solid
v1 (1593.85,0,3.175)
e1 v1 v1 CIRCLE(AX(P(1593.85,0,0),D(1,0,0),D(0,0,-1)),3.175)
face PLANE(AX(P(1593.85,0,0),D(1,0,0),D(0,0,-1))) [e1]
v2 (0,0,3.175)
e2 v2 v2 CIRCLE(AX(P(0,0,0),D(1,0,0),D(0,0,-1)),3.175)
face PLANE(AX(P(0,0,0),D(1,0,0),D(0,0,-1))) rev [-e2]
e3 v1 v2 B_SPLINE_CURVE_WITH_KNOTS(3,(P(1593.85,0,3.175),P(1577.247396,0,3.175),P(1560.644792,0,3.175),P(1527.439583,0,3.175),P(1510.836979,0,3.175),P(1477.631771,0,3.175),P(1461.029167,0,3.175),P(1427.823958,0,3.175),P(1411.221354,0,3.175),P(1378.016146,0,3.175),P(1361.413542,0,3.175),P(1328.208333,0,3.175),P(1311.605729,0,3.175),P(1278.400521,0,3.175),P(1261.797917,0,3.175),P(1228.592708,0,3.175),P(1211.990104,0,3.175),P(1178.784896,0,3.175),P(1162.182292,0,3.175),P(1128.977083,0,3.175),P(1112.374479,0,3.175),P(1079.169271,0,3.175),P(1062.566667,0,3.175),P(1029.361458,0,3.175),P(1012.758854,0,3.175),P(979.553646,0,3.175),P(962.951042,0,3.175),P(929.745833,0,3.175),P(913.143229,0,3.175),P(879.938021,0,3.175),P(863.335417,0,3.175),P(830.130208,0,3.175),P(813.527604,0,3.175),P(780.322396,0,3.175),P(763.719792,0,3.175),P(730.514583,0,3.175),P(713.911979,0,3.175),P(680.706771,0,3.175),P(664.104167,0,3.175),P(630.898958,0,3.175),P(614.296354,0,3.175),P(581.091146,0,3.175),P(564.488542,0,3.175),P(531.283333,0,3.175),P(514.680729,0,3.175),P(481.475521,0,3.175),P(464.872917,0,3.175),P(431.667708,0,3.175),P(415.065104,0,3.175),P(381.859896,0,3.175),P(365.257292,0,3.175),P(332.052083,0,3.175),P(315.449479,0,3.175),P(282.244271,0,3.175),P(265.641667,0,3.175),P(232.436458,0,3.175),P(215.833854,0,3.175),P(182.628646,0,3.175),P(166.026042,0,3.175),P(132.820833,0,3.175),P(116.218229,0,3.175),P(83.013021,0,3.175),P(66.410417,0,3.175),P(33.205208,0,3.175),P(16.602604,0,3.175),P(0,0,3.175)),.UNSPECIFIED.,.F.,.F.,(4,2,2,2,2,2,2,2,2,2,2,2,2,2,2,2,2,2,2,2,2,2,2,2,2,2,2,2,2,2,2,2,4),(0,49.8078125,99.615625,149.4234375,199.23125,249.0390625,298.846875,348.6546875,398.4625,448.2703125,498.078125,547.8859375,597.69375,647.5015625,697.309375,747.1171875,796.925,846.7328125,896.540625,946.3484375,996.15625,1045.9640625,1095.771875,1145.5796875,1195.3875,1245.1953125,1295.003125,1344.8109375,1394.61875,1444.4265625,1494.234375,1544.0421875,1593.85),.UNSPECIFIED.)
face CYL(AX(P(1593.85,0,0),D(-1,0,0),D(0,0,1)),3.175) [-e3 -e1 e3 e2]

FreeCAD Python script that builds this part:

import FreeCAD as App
import Part
import Sketcher
Q = App.Units.Quantity

doc = App.newDocument("Part")
body = doc.addObject("PartDesign::Body", "Body")

# Sketch on YZ plane
sketch1 = doc.addObject("Sketcher::SketchObject", "Sketch")
body.addObject(sketch1)
sketch1.AttachmentSupport = (doc.YZ_Plane, [""])
sketch1.MapMode = "FlatFace"
sketch1.addGeometry(Part.Circle(App.Vector(0, 0, 0), App.Vector(0, 0, 1), 3.2), False)
sketch1.addConstraint(Sketcher.Constraint("Coincident", 0, 3, -1, 1))
sketch1.addConstraint(Sketcher.Constraint("Diameter", 0, Q("0.25 in")))
pad1 = doc.addObject("PartDesign::Pad", "Pad")
body.addObject(pad1)
pad1.Profile = sketch1
pad1.Length = Q("62.75 in")

doc.recompute()
